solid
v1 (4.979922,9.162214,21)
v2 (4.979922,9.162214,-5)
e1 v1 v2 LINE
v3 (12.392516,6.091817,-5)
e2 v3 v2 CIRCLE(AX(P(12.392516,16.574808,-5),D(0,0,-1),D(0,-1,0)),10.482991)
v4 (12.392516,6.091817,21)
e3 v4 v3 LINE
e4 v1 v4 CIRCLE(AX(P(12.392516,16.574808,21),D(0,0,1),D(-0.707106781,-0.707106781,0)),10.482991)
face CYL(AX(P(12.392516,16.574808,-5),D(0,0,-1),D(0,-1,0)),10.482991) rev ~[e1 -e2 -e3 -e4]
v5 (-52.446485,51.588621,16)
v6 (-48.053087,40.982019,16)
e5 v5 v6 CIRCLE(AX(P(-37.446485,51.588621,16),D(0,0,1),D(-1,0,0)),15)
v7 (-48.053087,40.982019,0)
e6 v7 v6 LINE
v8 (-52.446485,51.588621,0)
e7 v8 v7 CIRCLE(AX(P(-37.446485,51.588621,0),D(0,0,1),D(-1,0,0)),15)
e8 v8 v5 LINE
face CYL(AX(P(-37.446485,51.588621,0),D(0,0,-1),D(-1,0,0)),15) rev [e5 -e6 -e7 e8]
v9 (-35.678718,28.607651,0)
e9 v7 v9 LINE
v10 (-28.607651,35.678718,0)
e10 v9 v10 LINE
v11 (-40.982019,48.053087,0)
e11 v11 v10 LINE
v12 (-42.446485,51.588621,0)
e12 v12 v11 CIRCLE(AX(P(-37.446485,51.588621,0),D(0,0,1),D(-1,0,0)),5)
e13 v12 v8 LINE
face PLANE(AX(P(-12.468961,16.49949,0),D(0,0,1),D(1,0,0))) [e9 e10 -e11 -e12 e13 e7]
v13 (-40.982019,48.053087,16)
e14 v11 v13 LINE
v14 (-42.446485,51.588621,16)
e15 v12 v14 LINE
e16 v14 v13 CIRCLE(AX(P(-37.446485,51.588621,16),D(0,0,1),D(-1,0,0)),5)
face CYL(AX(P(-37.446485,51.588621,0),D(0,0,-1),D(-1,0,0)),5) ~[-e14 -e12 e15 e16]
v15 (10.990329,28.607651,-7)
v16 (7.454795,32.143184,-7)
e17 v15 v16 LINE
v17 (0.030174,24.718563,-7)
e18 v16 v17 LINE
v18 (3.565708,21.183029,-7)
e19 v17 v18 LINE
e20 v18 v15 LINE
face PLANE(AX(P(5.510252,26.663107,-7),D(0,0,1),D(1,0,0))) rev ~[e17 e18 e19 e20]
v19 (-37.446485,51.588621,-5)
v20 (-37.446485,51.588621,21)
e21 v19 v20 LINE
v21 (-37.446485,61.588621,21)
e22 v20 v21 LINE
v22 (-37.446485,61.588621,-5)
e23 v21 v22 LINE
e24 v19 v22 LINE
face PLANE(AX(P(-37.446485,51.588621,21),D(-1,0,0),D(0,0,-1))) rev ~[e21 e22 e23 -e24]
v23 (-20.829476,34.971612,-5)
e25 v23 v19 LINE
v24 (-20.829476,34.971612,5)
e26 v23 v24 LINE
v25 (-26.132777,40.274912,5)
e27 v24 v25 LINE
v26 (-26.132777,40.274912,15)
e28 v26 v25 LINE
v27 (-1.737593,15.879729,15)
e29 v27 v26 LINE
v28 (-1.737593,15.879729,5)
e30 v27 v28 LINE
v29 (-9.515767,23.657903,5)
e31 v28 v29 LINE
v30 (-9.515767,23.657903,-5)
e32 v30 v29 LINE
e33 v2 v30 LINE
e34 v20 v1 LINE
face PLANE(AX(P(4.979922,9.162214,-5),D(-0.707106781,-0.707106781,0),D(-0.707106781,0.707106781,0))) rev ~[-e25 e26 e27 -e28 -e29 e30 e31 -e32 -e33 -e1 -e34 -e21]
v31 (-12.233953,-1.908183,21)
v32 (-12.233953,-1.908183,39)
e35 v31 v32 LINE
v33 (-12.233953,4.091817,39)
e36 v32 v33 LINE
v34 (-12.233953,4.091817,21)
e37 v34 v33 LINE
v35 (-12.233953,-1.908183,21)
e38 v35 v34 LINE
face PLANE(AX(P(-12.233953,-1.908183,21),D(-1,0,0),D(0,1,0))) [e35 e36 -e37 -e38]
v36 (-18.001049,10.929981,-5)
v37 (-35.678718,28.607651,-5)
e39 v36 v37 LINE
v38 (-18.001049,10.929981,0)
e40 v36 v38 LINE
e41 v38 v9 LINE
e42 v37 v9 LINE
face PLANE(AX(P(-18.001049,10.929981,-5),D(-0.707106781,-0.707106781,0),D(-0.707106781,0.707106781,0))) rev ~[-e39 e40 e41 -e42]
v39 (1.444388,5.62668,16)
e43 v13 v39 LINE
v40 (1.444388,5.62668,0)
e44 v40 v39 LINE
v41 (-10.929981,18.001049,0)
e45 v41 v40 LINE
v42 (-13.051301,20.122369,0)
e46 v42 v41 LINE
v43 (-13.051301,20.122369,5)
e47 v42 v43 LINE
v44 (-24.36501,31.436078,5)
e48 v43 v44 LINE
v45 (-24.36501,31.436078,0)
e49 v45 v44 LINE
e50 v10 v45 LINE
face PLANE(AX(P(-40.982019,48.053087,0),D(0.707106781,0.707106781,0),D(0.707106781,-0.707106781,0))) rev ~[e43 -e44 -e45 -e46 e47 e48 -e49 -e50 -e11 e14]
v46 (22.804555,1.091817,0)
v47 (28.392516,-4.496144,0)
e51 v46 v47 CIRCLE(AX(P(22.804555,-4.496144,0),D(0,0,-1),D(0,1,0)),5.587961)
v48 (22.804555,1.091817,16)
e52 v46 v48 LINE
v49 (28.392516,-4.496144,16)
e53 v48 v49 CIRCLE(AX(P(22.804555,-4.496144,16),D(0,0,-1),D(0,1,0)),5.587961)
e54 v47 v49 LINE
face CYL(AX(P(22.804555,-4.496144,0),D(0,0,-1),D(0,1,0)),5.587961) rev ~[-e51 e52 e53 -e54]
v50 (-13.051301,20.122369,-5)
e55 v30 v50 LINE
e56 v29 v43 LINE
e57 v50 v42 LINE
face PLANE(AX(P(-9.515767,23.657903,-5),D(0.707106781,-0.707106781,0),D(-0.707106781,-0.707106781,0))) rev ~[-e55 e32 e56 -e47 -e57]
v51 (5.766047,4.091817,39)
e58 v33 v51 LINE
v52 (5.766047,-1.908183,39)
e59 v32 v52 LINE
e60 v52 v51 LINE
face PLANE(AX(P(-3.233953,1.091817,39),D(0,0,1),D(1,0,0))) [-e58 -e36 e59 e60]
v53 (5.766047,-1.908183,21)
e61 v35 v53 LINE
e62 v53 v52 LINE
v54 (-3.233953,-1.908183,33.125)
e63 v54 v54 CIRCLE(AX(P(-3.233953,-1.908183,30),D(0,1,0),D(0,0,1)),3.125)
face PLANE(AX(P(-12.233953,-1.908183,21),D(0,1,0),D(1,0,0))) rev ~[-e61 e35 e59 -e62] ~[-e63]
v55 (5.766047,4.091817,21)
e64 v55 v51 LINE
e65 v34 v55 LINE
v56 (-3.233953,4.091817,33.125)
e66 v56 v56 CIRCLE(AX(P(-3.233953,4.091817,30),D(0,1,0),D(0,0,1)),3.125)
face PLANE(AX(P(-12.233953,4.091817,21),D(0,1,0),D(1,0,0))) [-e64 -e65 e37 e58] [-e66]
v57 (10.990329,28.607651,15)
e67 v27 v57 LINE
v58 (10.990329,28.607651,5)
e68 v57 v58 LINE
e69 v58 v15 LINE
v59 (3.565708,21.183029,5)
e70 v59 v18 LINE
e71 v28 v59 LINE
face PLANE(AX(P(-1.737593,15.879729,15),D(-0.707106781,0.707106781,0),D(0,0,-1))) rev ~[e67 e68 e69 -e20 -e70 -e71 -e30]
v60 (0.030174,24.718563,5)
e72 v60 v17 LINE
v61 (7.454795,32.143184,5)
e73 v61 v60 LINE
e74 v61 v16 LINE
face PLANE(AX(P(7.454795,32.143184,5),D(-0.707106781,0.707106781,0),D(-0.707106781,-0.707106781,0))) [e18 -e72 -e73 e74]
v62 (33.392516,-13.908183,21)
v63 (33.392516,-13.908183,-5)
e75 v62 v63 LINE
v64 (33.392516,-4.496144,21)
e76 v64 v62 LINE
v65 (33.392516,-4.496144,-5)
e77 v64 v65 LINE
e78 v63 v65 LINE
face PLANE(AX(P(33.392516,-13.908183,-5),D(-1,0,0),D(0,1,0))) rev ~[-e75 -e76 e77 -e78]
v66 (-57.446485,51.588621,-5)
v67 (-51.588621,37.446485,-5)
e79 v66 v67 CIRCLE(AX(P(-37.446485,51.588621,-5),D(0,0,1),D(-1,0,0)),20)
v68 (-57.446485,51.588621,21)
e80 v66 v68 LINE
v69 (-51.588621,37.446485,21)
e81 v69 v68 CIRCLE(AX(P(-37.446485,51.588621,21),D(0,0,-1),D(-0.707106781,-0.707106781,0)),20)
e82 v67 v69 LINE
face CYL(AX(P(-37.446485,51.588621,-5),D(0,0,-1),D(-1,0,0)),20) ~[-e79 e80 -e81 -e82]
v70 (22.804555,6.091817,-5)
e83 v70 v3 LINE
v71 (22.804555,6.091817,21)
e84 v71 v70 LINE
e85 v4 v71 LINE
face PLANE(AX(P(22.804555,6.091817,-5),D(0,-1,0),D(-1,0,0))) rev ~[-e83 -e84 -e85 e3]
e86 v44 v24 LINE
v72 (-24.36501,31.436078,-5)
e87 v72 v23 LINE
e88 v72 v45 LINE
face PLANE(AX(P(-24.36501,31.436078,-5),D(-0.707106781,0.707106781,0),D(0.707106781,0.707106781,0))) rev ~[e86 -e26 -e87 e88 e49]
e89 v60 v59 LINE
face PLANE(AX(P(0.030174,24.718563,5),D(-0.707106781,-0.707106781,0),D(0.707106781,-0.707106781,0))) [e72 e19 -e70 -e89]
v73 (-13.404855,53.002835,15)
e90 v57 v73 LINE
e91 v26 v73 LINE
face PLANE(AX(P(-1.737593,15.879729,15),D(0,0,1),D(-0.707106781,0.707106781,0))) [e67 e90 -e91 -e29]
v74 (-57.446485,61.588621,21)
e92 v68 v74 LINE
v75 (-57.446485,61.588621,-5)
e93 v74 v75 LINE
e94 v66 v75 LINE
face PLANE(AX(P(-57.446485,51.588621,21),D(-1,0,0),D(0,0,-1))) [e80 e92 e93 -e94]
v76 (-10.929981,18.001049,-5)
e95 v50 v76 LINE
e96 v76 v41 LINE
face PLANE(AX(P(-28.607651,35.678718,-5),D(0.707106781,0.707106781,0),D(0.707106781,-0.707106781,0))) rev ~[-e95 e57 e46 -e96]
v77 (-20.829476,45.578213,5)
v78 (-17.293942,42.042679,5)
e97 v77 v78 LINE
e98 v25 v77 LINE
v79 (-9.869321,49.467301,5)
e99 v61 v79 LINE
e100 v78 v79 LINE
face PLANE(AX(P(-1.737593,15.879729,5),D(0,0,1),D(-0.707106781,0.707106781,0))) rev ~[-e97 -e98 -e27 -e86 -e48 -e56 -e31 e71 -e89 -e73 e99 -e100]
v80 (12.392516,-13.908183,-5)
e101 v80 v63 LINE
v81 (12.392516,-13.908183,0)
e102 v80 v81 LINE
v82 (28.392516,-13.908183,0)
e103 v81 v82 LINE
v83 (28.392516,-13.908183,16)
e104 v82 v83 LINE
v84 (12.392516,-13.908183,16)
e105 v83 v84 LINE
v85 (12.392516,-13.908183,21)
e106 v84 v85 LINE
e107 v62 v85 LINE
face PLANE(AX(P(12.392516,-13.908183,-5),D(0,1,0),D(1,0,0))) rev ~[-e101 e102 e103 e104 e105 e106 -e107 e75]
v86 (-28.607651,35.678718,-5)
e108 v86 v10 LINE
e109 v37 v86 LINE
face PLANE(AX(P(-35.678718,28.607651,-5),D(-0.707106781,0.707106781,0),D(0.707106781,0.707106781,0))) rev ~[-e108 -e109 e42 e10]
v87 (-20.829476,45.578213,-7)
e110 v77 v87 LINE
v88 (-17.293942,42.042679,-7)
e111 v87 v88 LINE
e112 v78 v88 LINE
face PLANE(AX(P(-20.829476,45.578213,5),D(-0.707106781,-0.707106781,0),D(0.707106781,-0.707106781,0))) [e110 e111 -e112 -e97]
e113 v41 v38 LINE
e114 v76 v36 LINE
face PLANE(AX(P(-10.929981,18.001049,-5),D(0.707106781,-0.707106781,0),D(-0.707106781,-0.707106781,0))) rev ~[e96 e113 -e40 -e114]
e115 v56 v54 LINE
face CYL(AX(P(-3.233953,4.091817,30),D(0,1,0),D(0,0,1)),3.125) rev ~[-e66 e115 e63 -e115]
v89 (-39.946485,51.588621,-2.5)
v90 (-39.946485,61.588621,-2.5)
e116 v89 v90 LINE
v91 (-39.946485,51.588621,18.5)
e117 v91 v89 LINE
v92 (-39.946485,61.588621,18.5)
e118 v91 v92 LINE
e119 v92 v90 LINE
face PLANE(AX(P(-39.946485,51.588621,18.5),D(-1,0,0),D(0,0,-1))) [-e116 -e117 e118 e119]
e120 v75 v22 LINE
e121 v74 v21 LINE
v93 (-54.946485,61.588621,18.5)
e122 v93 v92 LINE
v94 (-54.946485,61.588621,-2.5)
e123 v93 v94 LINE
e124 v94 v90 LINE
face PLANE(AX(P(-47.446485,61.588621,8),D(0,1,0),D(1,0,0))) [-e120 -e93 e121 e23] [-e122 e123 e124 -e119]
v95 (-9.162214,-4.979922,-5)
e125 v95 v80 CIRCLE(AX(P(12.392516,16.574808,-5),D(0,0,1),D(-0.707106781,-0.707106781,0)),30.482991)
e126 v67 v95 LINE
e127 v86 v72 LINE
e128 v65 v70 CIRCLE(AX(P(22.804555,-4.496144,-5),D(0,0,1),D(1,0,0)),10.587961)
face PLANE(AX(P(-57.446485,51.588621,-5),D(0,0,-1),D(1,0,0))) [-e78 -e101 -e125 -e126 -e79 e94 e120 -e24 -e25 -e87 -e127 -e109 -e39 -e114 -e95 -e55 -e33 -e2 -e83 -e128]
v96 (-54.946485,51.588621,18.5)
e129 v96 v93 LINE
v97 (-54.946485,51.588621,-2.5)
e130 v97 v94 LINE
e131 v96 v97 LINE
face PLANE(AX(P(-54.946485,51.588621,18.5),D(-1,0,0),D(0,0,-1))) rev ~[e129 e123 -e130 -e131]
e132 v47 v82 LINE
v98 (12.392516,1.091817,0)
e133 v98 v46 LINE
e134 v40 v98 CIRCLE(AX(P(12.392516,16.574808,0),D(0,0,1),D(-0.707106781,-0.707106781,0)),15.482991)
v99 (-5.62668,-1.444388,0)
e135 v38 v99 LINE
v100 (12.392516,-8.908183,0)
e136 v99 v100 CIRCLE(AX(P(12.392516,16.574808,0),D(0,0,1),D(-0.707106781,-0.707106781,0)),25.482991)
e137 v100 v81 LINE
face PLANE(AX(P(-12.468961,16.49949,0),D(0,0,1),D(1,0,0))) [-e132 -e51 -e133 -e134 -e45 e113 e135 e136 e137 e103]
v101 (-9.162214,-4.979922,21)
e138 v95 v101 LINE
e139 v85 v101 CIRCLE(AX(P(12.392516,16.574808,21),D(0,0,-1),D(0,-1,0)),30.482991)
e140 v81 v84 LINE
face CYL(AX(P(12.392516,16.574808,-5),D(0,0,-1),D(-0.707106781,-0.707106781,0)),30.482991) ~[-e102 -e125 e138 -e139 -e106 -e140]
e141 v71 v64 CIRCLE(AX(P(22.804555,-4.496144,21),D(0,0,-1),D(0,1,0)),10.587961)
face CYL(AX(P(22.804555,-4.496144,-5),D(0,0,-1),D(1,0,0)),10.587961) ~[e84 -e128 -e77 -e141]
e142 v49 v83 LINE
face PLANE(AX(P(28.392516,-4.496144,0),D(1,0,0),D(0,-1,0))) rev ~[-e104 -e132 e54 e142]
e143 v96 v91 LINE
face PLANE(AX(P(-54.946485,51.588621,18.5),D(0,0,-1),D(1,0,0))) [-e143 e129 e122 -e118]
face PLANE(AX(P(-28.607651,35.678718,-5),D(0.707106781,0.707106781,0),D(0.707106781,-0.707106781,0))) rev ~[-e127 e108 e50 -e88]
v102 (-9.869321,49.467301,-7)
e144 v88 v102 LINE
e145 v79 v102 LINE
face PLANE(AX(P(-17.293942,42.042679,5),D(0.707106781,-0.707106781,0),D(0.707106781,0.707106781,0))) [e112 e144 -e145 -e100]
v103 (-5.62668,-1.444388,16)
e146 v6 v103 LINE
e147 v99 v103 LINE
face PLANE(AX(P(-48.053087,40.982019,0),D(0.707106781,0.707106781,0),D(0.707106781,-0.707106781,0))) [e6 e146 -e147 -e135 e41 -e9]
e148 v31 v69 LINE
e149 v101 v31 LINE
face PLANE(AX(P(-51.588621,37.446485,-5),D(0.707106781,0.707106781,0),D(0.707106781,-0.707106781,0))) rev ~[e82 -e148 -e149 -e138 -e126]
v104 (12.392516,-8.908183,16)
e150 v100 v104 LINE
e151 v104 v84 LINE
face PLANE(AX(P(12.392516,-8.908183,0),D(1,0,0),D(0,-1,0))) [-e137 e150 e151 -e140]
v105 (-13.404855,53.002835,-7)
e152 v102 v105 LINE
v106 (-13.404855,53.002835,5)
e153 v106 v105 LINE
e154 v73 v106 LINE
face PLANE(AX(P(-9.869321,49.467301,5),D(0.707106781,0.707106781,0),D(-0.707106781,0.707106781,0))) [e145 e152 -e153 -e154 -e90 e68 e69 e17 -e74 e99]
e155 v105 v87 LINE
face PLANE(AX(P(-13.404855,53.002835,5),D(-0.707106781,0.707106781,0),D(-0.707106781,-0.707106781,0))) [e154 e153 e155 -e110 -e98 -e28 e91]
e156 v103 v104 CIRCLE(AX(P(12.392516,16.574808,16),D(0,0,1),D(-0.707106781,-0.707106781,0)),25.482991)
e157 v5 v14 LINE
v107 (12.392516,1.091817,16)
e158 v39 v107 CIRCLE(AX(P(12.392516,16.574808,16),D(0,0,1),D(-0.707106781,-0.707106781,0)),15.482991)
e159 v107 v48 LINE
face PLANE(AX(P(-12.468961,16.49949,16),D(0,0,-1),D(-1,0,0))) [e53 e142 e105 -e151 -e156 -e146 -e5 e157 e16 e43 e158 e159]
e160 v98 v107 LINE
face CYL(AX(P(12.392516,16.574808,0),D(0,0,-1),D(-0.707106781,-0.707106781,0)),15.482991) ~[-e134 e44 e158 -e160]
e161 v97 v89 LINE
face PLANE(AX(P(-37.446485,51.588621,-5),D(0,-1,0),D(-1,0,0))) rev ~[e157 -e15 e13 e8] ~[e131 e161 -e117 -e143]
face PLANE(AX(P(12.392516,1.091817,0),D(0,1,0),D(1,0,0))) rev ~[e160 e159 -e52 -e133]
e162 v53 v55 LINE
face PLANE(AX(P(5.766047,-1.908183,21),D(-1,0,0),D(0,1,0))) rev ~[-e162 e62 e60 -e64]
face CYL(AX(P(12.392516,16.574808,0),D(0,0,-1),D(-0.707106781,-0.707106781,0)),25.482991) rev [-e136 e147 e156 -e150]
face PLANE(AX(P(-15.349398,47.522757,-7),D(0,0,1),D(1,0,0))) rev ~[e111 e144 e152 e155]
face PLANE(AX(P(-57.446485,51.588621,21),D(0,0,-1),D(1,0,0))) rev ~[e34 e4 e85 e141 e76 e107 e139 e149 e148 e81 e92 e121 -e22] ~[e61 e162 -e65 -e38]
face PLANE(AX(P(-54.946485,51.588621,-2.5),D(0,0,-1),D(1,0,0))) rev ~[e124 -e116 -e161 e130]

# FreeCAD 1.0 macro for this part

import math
import FreeCAD as App
import Part
import Sketcher

V = App.Vector
Q = App.Units.Quantity

doc = App.newDocument("Part")
body = doc.addObject("PartDesign::Body", "Body")

# Sketch on XY plane
sketch1 = body.newObject("Sketcher::SketchObject", "Sketch")
sketch1.AttachmentSupport = (doc.getObject("XY_Plane"), [""])
sketch1.MapMode = "FlatFace"
sketch1.addGeometry([
    Part.LineSegment(V(-41, 48.1, 0), V(1.4, 5.6, 0)),  # 0
    Part.ArcOfCircle(Part.Circle(V(12.4, 16.6, 0), V(0, 0, 1), 15.5), math.radians(-135), math.radians(-90)),  # 1
    Part.LineSegment(V(12.4, 1.1, 0), V(22.8, 1.1, 0)),  # 2
    Part.ArcOfCircle(Part.Circle(V(22.8, -4.5, 0), V(0, 0, 1), 5.6), math.radians(0), math.radians(90)),  # 3
    Part.LineSegment(V(28.4, -4.5, 0), V(28.4, -13.9, 0)),  # 4
    Part.LineSegment(V(28.4, -13.9, 0), V(33.4, -13.9, 0)),  # 5
    Part.LineSegment(V(33.4, -13.9, 0), V(33.4, -4.5, 0)),  # 6
    Part.ArcOfCircle(Part.Circle(V(22.8, -4.5, 0), V(0, 0, 1), 10.6), math.radians(0), math.radians(90)),  # 7
    Part.LineSegment(V(22.8, 6.1, 0), V(12.4, 6.1, 0)),  # 8
    Part.ArcOfCircle(Part.Circle(V(12.4, 16.6, 0), V(0, 0, 1), 10.5), math.radians(-135), math.radians(-90)),  # 9
    Part.LineSegment(V(5, 9.2, 0), V(-37.4, 51.6, 0)),  # 10
    Part.LineSegment(V(-37.4, 51.6, 0), V(-42.4, 51.6, 0)),  # 11
    Part.ArcOfCircle(Part.Circle(V(-37.4, 51.6, 0), V(0, 0, 1), 5), math.radians(180), math.radians(225)),  # 12
], False)
sketch1.addConstraint([
    Sketcher.Constraint("Tangent", 0, 2, 1, 1),
    Sketcher.Constraint("Tangent", 1, 2, 2, 1),
    Sketcher.Constraint("Tangent", 2, 2, 3, 2),
    Sketcher.Constraint("Tangent", 3, 1, 4, 1),
    Sketcher.Constraint("Coincident", 4, 2, 5, 1),
    Sketcher.Constraint("Coincident", 5, 2, 6, 1),
    Sketcher.Constraint("Tangent", 6, 2, 7, 1),
    Sketcher.Constraint("Tangent", 7, 2, 8, 1),
    Sketcher.Constraint("Tangent", 8, 2, 9, 2),
    Sketcher.Constraint("Tangent", 9, 1, 10, 1),
    Sketcher.Constraint("Coincident", 10, 2, 11, 1),
    Sketcher.Constraint("Coincident", 11, 2, 12, 1),
    Sketcher.Constraint("Tangent", 12, 2, 0, 1),
    Sketcher.Constraint("Horizontal", 2),
    Sketcher.Constraint("Vertical", 4),
    Sketcher.Constraint("Horizontal", 5),
    Sketcher.Constraint("Vertical", 6),
    Sketcher.Constraint("Horizontal", 8),
    Sketcher.Constraint("Horizontal", 11),
    Sketcher.Constraint("Coincident", 7, 3, 3, 3),
    Sketcher.Constraint("Coincident", 9, 3, 1, 3),
    Sketcher.Constraint("Coincident", 10, 2, 12, 3),
    Sketcher.Constraint("Parallel", 0, 10),
    Sketcher.Constraint("Radius", 12, 5.0),
    Sketcher.Constraint("Angle", 0, Q("-45 deg")),
    Sketcher.Constraint("Distance", 0, 60.0),
    Sketcher.Constraint("DistanceX", 1, 2, 3, 1, 16.0),
    Sketcher.Constraint("DistanceY", 4, 2, 2, 2, 15.0),
    Sketcher.Constraint("Radius", 1, 15.482991),
    Sketcher.Constraint("Radius", 3, 5.587961),
    Sketcher.Constraint("DistanceY", -1, 1, 1, 3, 16.574808),
    Sketcher.Constraint("DistanceX", -1, 1, 9, 1, 4.979922),
])
pad1 = body.newObject("PartDesign::Pad", "Pad")
pad1.Profile = sketch1
pad1.Length = 16
body2 = doc.addObject("PartDesign::Body", "Body001")

# Sketch on XY plane
sketch2 = body2.newObject("Sketcher::SketchObject", "Sketch001")
sketch2.AttachmentSupport = (doc.getObject("XY_Plane001"), [""])
sketch2.MapMode = "FlatFace"
sketch2.addGeometry([
    Part.LineSegment(V(-6, -1, 0), V(-48, 41, 0)),  # 0
    Part.ArcOfCircle(Part.Circle(V(-37, 52, 0), V(0, 0, 1), 15), math.radians(180), math.radians(225)),  # 1
    Part.LineSegment(V(-52, 52, 0), V(-57, 52, 0)),  # 2
    Part.ArcOfCircle(Part.Circle(V(-37, 52, 0), V(0, 0, 1), 20), math.radians(180), math.radians(225)),  # 3
    Part.LineSegment(V(-52, 37, 0), V(-9, -5, 0)),  # 4
    Part.ArcOfCircle(Part.Circle(V(12, 17, 0), V(0, 0, 1), 30), math.radians(-135), math.radians(-90)),  # 5
    Part.LineSegment(V(12, -14, 0), V(12, -9, 0)),  # 6
    Part.ArcOfCircle(Part.Circle(V(12, 17, 0), V(0, 0, 1), 25), math.radians(-135), math.radians(-90)),  # 7
], False)
sketch2.addConstraint([
    Sketcher.Constraint("Tangent", 0, 2, 1, 2),
    Sketcher.Constraint("Coincident", 1, 1, 2, 1),
    Sketcher.Constraint("Coincident", 2, 2, 3, 1),
    Sketcher.Constraint("Tangent", 3, 2, 4, 1),
    Sketcher.Constraint("Tangent", 4, 2, 5, 1),
    Sketcher.Constraint("Coincident", 5, 2, 6, 1),
    Sketcher.Constraint("Coincident", 6, 2, 7, 2),
    Sketcher.Constraint("Tangent", 7, 1, 0, 1),
    Sketcher.Constraint("Horizontal", 2),
    Sketcher.Constraint("Vertical", 6),
    Sketcher.Constraint("Coincident", 3, 3, 1, 3),
    Sketcher.Constraint("Coincident", 7, 3, 5, 3),
    Sketcher.Constraint("Parallel", 0, 4),
    Sketcher.Constraint("Horizontal", 3, 3, 1, 1),
    Sketcher.Constraint("Vertical", 7, 3, 5, 2),
    Sketcher.Constraint("Radius", 1, 15.0),
    Sketcher.Constraint("Radius", 3, 20.0),
    Sketcher.Constraint("Angle", 0, Q("135 deg")),
    Sketcher.Constraint("Distance", 0, 60.0),
    Sketcher.Constraint("Radius", 5, 30.482991),
    Sketcher.Constraint("DistanceY", -1, 1, 1, 3, 51.588621),
    Sketcher.Constraint("DistanceX", 3, 2, -1, 1, 51.588621),
])
pad2 = body2.newObject("PartDesign::Pad", "Pad001")
pad2.Profile = sketch2
pad2.Length = 16
body.AllowCompound = True
doc.recompute()

boolean = body.newObject("PartDesign::Boolean", "Boolean")
boolean.Type = "Fuse"
boolean.addObjects([body2])

# Sketch on XY plane
sketch3 = body.newObject("Sketcher::SketchObject", "Sketch002")
sketch3.AttachmentSupport = (doc.getObject("XY_Plane"), [""])
sketch3.MapMode = "FlatFace"
sketch3.AttachmentOffset = App.Placement(V(0, 0, 16), App.Rotation())
sketch3.addGeometry([
    Part.LineSegment(V(-37, 52, 0), V(-57, 52, 0)),  # 0
    Part.ArcOfCircle(Part.Circle(V(-37, 52, 0), V(0, 0, 1), 20), math.radians(180), math.radians(225)),  # 1
    Part.LineSegment(V(-52, 37, 0), V(-9, -5, 0)),  # 2
    Part.ArcOfCircle(Part.Circle(V(12, 17, 0), V(0, 0, 1), 30), math.radians(-135), math.radians(-90)),  # 3
    Part.LineSegment(V(12, -14, 0), V(33, -14, 0)),  # 4
    Part.LineSegment(V(33, -14, 0), V(33, -4, 0)),  # 5
    Part.ArcOfCircle(Part.Circle(V(23, -4, 0), V(0, 0, 1), 11), math.radians(0), math.radians(90)),  # 6
    Part.LineSegment(V(23, 6, 0), V(12, 6, 0)),  # 7
    Part.ArcOfCircle(Part.Circle(V(12, 17, 0), V(0, 0, 1), 10), math.radians(-135), math.radians(-90)),  # 8
    Part.LineSegment(V(5, 9, 0), V(-37, 52, 0)),  # 9
], False)
sketch3.addConstraint([
    Sketcher.Constraint("Coincident", 0, 2, 1, 1),
    Sketcher.Constraint("Tangent", 1, 2, 2, 1),
    Sketcher.Constraint("Tangent", 2, 2, 3, 1),
    Sketcher.Constraint("Tangent", 3, 2, 4, 1),
    Sketcher.Constraint("Coincident", 4, 2, 5, 1),
    Sketcher.Constraint("Tangent", 5, 2, 6, 1),
    Sketcher.Constraint("Tangent", 6, 2, 7, 1),
    Sketcher.Constraint("Tangent", 7, 2, 8, 2),
    Sketcher.Constraint("Tangent", 8, 1, 9, 1),
    Sketcher.Constraint("Coincident", 9, 2, 0, 1),
    Sketcher.Constraint("Horizontal", 0),
    Sketcher.Constraint("Horizontal", 4),
    Sketcher.Constraint("Vertical", 5),
    Sketcher.Constraint("Horizontal", 7),
    Sketcher.Constraint("Coincident", 8, 3, 3, 3),
    Sketcher.Constraint("Coincident", 9, 2, 1, 3),
    Sketcher.Constraint("Parallel", 2, 9),
    Sketcher.Constraint("Radius", 1, 20.0),
    Sketcher.Constraint("DistanceX", 4, 1, 4, 2, 21.0),
    Sketcher.Constraint("Angle", 2, Q("-45 deg")),
    Sketcher.Constraint("Distance", 2, 60.0),
    Sketcher.Constraint("Radius", 3, 30.482991),
    Sketcher.Constraint("Radius", 6, 10.587961),
    Sketcher.Constraint("DistanceY", -1, 1, 1, 3, 51.588621),
    Sketcher.Constraint("DistanceX", 1, 2, -1, 1, 51.588621),
])
pad3 = body.newObject("PartDesign::Pad", "Pad002")
pad3.Profile = sketch3
pad3.Length = 5

# Sketch on XY plane
sketch4 = body.newObject("Sketcher::SketchObject", "Sketch003")
sketch4.AttachmentSupport = (doc.getObject("XY_Plane"), [""])
sketch4.MapMode = "FlatFace"
sketch4.AttachmentOffset = App.Placement(V(0, 0, -5), App.Rotation())
sketch4.addGeometry([
    Part.LineSegment(V(-37, 52, 0), V(5, 9, 0)),  # 0
    Part.ArcOfCircle(Part.Circle(V(12, 17, 0), V(0, 0, 1), 10), math.radians(-135), math.radians(-90)),  # 1
    Part.LineSegment(V(12, 6, 0), V(23, 6, 0)),  # 2
    Part.ArcOfCircle(Part.Circle(V(23, -4, 0), V(0, 0, 1), 11), math.radians(0), math.radians(90)),  # 3
    Part.LineSegment(V(33, -4, 0), V(33, -14, 0)),  # 4
    Part.LineSegment(V(33, -14, 0), V(12, -14, 0)),  # 5
    Part.ArcOfCircle(Part.Circle(V(12, 17, 0), V(0, 0, 1), 30), math.radians(-135), math.radians(-90)),  # 6
    Part.LineSegment(V(-9, -5, 0), V(-52, 37, 0)),  # 7
    Part.ArcOfCircle(Part.Circle(V(-37, 52, 0), V(0, 0, 1), 20), math.radians(180), math.radians(225)),  # 8
    Part.LineSegment(V(-57, 52, 0), V(-37, 52, 0)),  # 9
    Part.LineSegment(V(-29, 36, 0), V(-36, 29, 0)),  # 10
    Part.LineSegment(V(-36, 29, 0), V(-18, 11, 0)),  # 11
    Part.LineSegment(V(-18, 11, 0), V(-11, 18, 0)),  # 12
    Part.LineSegment(V(-11, 18, 0), V(-29, 36, 0)),  # 13
], False)
sketch4.addConstraint([
    Sketcher.Constraint("Tangent", 0, 2, 1, 1),
    Sketcher.Constraint("Tangent", 1, 2, 2, 1),
    Sketcher.Constraint("Tangent", 2, 2, 3, 2),
    Sketcher.Constraint("Tangent", 3, 1, 4, 1),
    Sketcher.Constraint("Coincident", 4, 2, 5, 1),
    Sketcher.Constraint("Tangent", 5, 2, 6, 2),
    Sketcher.Constraint("Tangent", 6, 1, 7, 1),
    Sketcher.Constraint("Tangent", 7, 2, 8, 2),
    Sketcher.Constraint("Coincident", 8, 1, 9, 1),
    Sketcher.Constraint("Coincident", 9, 2, 0, 1),
    Sketcher.Constraint("Coincident", 10, 2, 11, 1),
    Sketcher.Constraint("Coincident", 11, 2, 12, 1),
    Sketcher.Constraint("Coincident", 12, 2, 13, 1),
    Sketcher.Constraint("Coincident", 13, 2, 10, 1),
    Sketcher.Constraint("Horizontal", 2),
    Sketcher.Constraint("Vertical", 4),
    Sketcher.Constraint("Horizontal", 5),
    Sketcher.Constraint("Horizontal", 9),
    Sketcher.Constraint("Coincident", 6, 3, 1, 3),
    Sketcher.Constraint("Coincident", 9, 2, 8, 3),
    Sketcher.Constraint("Parallel", 0, 7),
    Sketcher.Constraint("Perpendicular", 7, 10),
    Sketcher.Constraint("Perpendicular", 10, 11),
    Sketcher.Constraint("Perpendicular", 11, 12),
    Sketcher.Constraint("Perpendicular", 12, 13),
    Sketcher.Constraint("Radius", 8, 20.0),
    Sketcher.Constraint("DistanceX", 5, 2, 5, 1, 21.0),
    Sketcher.Constraint("Angle", 0, Q("-45 deg")),
    Sketcher.Constraint("Distance", 0, 60.0),
    Sketcher.Constraint("Distance", 10, 10.0),
    Sketcher.Constraint("Distance", 11, 25.0),
    Sketcher.Constraint("Radius", 1, 10.482991),
    Sketcher.Constraint("Radius", 3, 10.587961),
    Sketcher.Constraint("DistanceY", -1, 1, 1, 3, 16.574808),
    Sketcher.Constraint("DistanceX", -1, 1, 0, 2, 4.979922),
    Sketcher.Constraint("DistanceX", 10, 2, -1, 1, 35.678718),
    Sketcher.Constraint("DistanceY", -1, 1, 10, 2, 28.607651),
])
pad4 = body.newObject("PartDesign::Pad", "Pad003")
pad4.Profile = sketch4
pad4.Length = 5

# Sketch on XZ plane
sketch5 = body.newObject("Sketcher::SketchObject", "Sketch004")
sketch5.AttachmentSupport = (doc.getObject("XZ_Plane"), [""])
sketch5.MapMode = "FlatFace"
sketch5.AttachmentOffset = App.Placement(V(0, 0, -51.588621), App.Rotation())
sketch5.addGeometry([
    Part.LineSegment(V(-57, -5, 0), V(-57, 21, 0)),  # 0
    Part.LineSegment(V(-57, 21, 0), V(-37, 21, 0)),  # 1
    Part.LineSegment(V(-37, 21, 0), V(-37, -5, 0)),  # 2
    Part.LineSegment(V(-37, -5, 0), V(-57, -5, 0)),  # 3
    Part.LineSegment(V(-40, 18, 0), V(-55, 18, 0)),  # 4
    Part.LineSegment(V(-55, 18, 0), V(-55, -2, 0)),  # 5
    Part.LineSegment(V(-55, -2, 0), V(-40, -2, 0)),  # 6
    Part.LineSegment(V(-40, -2, 0), V(-40, 18, 0)),  # 7
], False)
sketch5.addConstraint([
    Sketcher.Constraint("Coincident", 0, 2, 1, 1),
    Sketcher.Constraint("Coincident", 1, 2, 2, 1),
    Sketcher.Constraint("Coincident", 2, 2, 3, 1),
    Sketcher.Constraint("Coincident", 3, 2, 0, 1),
    Sketcher.Constraint("Coincident", 4, 2, 5, 1),
    Sketcher.Constraint("Coincident", 5, 2, 6, 1),
    Sketcher.Constraint("Coincident", 6, 2, 7, 1),
    Sketcher.Constraint("Coincident", 7, 2, 4, 1),
    Sketcher.Constraint("Vertical", 0),
    Sketcher.Constraint("Horizontal", 1),
    Sketcher.Constraint("Vertical", 2),
    Sketcher.Constraint("Horizontal", 3),
    Sketcher.Constraint("Horizontal", 4),
    Sketcher.Constraint("Vertical", 5),
    Sketcher.Constraint("Horizontal", 6),
    Sketcher.Constraint("Vertical", 7),
    Sketcher.Constraint("DistanceX", 1, 1, 1, 2, 20.0),
    Sketcher.Constraint("DistanceX", 4, 2, 4, 1, 15.0),
    Sketcher.Constraint("DistanceY", 0, 1, 0, 2, 26.0),
    Sketcher.Constraint("DistanceY", 5, 2, 5, 1, 21.0),
    Sketcher.Constraint("DistanceY", -1, 1, 0, 2, 21.0),
    Sketcher.Constraint("DistanceY", -1, 1, 4, 2, 18.5),
    Sketcher.Constraint("DistanceX", 0, 2, 4, 2, 2.5),
    Sketcher.Constraint("DistanceX", 0, 2, -1, 1, 57.446485),
])
pad5 = body.newObject("PartDesign::Pad", "Pad004")
pad5.Profile = sketch5
pad5.Length = 10
pad5.Reversed = True

# Sketch on an angled plane
sketch6 = body.newObject("Sketcher::SketchObject", "Sketch005")
sketch6.Placement = App.Placement(V(7.071068, 7.071068, 0), App.Rotation(V(0, 0, -1), V(-0.707106781, 0.707106781, 0), V(0.707106781, 0.707106781, 0), "ZXY"))
sketch6.addGeometry([
    Part.LineSegment(V(-15, 47, 0), V(-15, 12, 0)),
    Part.LineSegment(V(-15, 12, 0), V(-5, 12, 0)),
    Part.LineSegment(V(-5, 12, 0), V(-5, 47, 0)),
    Part.LineSegment(V(-5, 47, 0), V(-15, 47, 0)),
], False)
sketch6.addConstraint([
    Sketcher.Constraint("Coincident", 0, 2, 1, 1),
    Sketcher.Constraint("Coincident", 1, 2, 2, 1),
    Sketcher.Constraint("Coincident", 2, 2, 3, 1),
    Sketcher.Constraint("Coincident", 3, 2, 0, 1),
    Sketcher.Constraint("Vertical", 0),
    Sketcher.Constraint("Horizontal", 1),
    Sketcher.Constraint("Vertical", 2),
    Sketcher.Constraint("Horizontal", 3),
    Sketcher.Constraint("DistanceX", 1, 1, 1, 2, 10.0),
    Sketcher.Constraint("DistanceY", 0, 2, 0, 1, 34.5),
    Sketcher.Constraint("DistanceX", 0, 2, -1, 1, 15.0),
    Sketcher.Constraint("DistanceY", -1, 1, 0, 2, 12.457327),
])
pad6 = body.newObject("PartDesign::Pad", "Pad005")
pad6.Profile = sketch6
pad6.Length = 18

# Sketch on XY plane
sketch7 = body.newObject("Sketcher::SketchObject", "Sketch006")
sketch7.AttachmentSupport = (doc.getObject("XY_Plane"), [""])
sketch7.MapMode = "FlatFace"
sketch7.AttachmentOffset = App.Placement(V(0, 0, 5), App.Rotation())
sketch7.addGeometry([
    Part.LineSegment(V(-17, 42, 0), V(-21, 46, 0)),  # 0
    Part.LineSegment(V(-21, 46, 0), V(-13, 53, 0)),  # 1
    Part.LineSegment(V(-13, 53, 0), V(-10, 49, 0)),  # 2
    Part.LineSegment(V(-10, 49, 0), V(-17, 42, 0)),  # 3
    Part.LineSegment(V(7, 32, 0), V(11, 29, 0)),  # 4
    Part.LineSegment(V(11, 29, 0), V(4, 21, 0)),  # 5
    Part.LineSegment(V(4, 21, 0), V(0, 25, 0)),  # 6
    Part.LineSegment(V(0, 25, 0), V(7, 32, 0)),  # 7
], False)
sketch7.addConstraint([
    Sketcher.Constraint("Coincident", 0, 2, 1, 1),
    Sketcher.Constraint("Coincident", 1, 2, 2, 1),
    Sketcher.Constraint("Coincident", 2, 2, 3, 1),
    Sketcher.Constraint("Coincident", 3, 2, 0, 1),
    Sketcher.Constraint("Coincident", 4, 2, 5, 1),
    Sketcher.Constraint("Coincident", 5, 2, 6, 1),
    Sketcher.Constraint("Coincident", 6, 2, 7, 1),
    Sketcher.Constraint("Coincident", 7, 2, 4, 1),
    Sketcher.Constraint("Perpendicular", 0, 1),
    Sketcher.Constraint("Perpendicular", 1, 2),
    Sketcher.Constraint("Perpendicular", 2, 3),
    Sketcher.Constraint("Perpendicular", 3, 4),
    Sketcher.Constraint("Perpendicular", 4, 5),
    Sketcher.Constraint("Perpendicular", 5, 6),
    Sketcher.Constraint("Perpendicular", 6, 7),
    Sketcher.Constraint("Equal", 2, 4),
    Sketcher.Constraint("Equal", 3, 5),
    Sketcher.Constraint("Angle", 0, Q("135 deg")),
    Sketcher.Constraint("Distance", 0, 5.0),
    Sketcher.Constraint("Distance", 1, 10.5),
    Sketcher.Constraint("DistanceY", -1, 1, 2, 2, 49.467301),
    Sketcher.Constraint("DistanceX", 2, 2, -1, 1, 9.869321),
    Sketcher.Constraint("DistanceX", -1, 1, 4, 2, 10.990329),
    Sketcher.Constraint("DistanceY", -1, 1, 4, 2, 28.607651),
])
pad7 = body.newObject("PartDesign::Pad", "Pad006")
pad7.Profile = sketch7
pad7.Length = 12
pad7.Reversed = True

# Sketch on XY plane
sketch8 = body.newObject("Sketcher::SketchObject", "Sketch007")
sketch8.AttachmentSupport = (doc.getObject("XY_Plane"), [""])
sketch8.MapMode = "FlatFace"
sketch8.AttachmentOffset = App.Placement(V(0, 0, -5), App.Rotation())
sketch8.addGeometry([
    Part.LineSegment(V(-24, 31, 0), V(-21, 35, 0)),
    Part.LineSegment(V(-21, 35, 0), V(-10, 24, 0)),
    Part.LineSegment(V(-10, 24, 0), V(-13, 20, 0)),
    Part.LineSegment(V(-13, 20, 0), V(-24, 31, 0)),
], False)
sketch8.addConstraint([
    Sketcher.Constraint("Coincident", 0, 2, 1, 1),
    Sketcher.Constraint("Coincident", 1, 2, 2, 1),
    Sketcher.Constraint("Coincident", 2, 2, 3, 1),
    Sketcher.Constraint("Coincident", 3, 2, 0, 1),
    Sketcher.Constraint("Perpendicular", 0, 1),
    Sketcher.Constraint("Perpendicular", 1, 2),
    Sketcher.Constraint("Perpendicular", 2, 3),
    Sketcher.Constraint("Angle", 0, Q("45 deg")),
    Sketcher.Constraint("Distance", 0, 5.0),
    Sketcher.Constraint("Distance", 1, 16.0),
    Sketcher.Constraint("DistanceX", 2, 2, -1, 1, 13.051301),
    Sketcher.Constraint("DistanceY", -1, 1, 0, 2, 34.971612),
])
pocket1 = body.newObject("PartDesign::Pocket", "Pocket")
pocket1.Profile = sketch8
pocket1.Length = 10
pocket1.Reversed = True

# Sketch on XY plane
sketch9 = body.newObject("Sketcher::SketchObject", "Sketch008")
sketch9.AttachmentSupport = (doc.getObject("XY_Plane"), [""])
sketch9.MapMode = "FlatFace"
sketch9.AttachmentOffset = App.Placement(V(0, 0, 21), App.Rotation())
sketch9.addGeometry([
    Part.LineSegment(V(-12, 4, 0), V(-12, -2, 0)),
    Part.LineSegment(V(-12, -2, 0), V(6, -2, 0)),
    Part.LineSegment(V(6, -2, 0), V(6, 4, 0)),
    Part.LineSegment(V(6, 4, 0), V(-12, 4, 0)),
], False)
sketch9.addConstraint([
    Sketcher.Constraint("Coincident", 0, 2, 1, 1),
    Sketcher.Constraint("Coincident", 1, 2, 2, 1),
    Sketcher.Constraint("Coincident", 2, 2, 3, 1),
    Sketcher.Constraint("Coincident", 3, 2, 0, 1),
    Sketcher.Constraint("Vertical", 0),
    Sketcher.Constraint("Horizontal", 1),
    Sketcher.Constraint("Vertical", 2),
    Sketcher.Constraint("Horizontal", 3),
    Sketcher.Constraint("DistanceX", 1, 1, 1, 2, 18.0),
    Sketcher.Constraint("DistanceY", 0, 2, 0, 1, 6.0),
    Sketcher.Constraint("DistanceX", 0, 2, -1, 1, 12.233953),
    Sketcher.Constraint("DistanceY", 0, 2, -1, 1, 1.908183),
])
pad8 = body.newObject("PartDesign::Pad", "Pad007")
pad8.Profile = sketch9
pad8.Length = 18

# Sketch on XZ plane
sketch10 = body.newObject("Sketcher::SketchObject", "Sketch009")
sketch10.AttachmentSupport = (doc.getObject("XZ_Plane"), [""])
sketch10.MapMode = "FlatFace"
sketch10.AttachmentOffset = App.Placement(V(0, 0, -4.091817), App.Rotation())
sketch10.addGeometry(Part.Circle(V(-3.2, 30, 0), V(0, 0, 1), 3.1), False)
sketch10.addConstraint([
    Sketcher.Constraint("Diameter", 0, 6.25),
    Sketcher.Constraint("DistanceY", -1, 1, 0, 3, 30.0),
    Sketcher.Constraint("DistanceX", 0, 3, -1, 1, 3.233953),
])
pocket2 = body.newObject("PartDesign::Pocket", "Pocket001")
pocket2.Profile = sketch10
pocket2.Length = 18
pocket2.Reversed = True

doc.recompute()
